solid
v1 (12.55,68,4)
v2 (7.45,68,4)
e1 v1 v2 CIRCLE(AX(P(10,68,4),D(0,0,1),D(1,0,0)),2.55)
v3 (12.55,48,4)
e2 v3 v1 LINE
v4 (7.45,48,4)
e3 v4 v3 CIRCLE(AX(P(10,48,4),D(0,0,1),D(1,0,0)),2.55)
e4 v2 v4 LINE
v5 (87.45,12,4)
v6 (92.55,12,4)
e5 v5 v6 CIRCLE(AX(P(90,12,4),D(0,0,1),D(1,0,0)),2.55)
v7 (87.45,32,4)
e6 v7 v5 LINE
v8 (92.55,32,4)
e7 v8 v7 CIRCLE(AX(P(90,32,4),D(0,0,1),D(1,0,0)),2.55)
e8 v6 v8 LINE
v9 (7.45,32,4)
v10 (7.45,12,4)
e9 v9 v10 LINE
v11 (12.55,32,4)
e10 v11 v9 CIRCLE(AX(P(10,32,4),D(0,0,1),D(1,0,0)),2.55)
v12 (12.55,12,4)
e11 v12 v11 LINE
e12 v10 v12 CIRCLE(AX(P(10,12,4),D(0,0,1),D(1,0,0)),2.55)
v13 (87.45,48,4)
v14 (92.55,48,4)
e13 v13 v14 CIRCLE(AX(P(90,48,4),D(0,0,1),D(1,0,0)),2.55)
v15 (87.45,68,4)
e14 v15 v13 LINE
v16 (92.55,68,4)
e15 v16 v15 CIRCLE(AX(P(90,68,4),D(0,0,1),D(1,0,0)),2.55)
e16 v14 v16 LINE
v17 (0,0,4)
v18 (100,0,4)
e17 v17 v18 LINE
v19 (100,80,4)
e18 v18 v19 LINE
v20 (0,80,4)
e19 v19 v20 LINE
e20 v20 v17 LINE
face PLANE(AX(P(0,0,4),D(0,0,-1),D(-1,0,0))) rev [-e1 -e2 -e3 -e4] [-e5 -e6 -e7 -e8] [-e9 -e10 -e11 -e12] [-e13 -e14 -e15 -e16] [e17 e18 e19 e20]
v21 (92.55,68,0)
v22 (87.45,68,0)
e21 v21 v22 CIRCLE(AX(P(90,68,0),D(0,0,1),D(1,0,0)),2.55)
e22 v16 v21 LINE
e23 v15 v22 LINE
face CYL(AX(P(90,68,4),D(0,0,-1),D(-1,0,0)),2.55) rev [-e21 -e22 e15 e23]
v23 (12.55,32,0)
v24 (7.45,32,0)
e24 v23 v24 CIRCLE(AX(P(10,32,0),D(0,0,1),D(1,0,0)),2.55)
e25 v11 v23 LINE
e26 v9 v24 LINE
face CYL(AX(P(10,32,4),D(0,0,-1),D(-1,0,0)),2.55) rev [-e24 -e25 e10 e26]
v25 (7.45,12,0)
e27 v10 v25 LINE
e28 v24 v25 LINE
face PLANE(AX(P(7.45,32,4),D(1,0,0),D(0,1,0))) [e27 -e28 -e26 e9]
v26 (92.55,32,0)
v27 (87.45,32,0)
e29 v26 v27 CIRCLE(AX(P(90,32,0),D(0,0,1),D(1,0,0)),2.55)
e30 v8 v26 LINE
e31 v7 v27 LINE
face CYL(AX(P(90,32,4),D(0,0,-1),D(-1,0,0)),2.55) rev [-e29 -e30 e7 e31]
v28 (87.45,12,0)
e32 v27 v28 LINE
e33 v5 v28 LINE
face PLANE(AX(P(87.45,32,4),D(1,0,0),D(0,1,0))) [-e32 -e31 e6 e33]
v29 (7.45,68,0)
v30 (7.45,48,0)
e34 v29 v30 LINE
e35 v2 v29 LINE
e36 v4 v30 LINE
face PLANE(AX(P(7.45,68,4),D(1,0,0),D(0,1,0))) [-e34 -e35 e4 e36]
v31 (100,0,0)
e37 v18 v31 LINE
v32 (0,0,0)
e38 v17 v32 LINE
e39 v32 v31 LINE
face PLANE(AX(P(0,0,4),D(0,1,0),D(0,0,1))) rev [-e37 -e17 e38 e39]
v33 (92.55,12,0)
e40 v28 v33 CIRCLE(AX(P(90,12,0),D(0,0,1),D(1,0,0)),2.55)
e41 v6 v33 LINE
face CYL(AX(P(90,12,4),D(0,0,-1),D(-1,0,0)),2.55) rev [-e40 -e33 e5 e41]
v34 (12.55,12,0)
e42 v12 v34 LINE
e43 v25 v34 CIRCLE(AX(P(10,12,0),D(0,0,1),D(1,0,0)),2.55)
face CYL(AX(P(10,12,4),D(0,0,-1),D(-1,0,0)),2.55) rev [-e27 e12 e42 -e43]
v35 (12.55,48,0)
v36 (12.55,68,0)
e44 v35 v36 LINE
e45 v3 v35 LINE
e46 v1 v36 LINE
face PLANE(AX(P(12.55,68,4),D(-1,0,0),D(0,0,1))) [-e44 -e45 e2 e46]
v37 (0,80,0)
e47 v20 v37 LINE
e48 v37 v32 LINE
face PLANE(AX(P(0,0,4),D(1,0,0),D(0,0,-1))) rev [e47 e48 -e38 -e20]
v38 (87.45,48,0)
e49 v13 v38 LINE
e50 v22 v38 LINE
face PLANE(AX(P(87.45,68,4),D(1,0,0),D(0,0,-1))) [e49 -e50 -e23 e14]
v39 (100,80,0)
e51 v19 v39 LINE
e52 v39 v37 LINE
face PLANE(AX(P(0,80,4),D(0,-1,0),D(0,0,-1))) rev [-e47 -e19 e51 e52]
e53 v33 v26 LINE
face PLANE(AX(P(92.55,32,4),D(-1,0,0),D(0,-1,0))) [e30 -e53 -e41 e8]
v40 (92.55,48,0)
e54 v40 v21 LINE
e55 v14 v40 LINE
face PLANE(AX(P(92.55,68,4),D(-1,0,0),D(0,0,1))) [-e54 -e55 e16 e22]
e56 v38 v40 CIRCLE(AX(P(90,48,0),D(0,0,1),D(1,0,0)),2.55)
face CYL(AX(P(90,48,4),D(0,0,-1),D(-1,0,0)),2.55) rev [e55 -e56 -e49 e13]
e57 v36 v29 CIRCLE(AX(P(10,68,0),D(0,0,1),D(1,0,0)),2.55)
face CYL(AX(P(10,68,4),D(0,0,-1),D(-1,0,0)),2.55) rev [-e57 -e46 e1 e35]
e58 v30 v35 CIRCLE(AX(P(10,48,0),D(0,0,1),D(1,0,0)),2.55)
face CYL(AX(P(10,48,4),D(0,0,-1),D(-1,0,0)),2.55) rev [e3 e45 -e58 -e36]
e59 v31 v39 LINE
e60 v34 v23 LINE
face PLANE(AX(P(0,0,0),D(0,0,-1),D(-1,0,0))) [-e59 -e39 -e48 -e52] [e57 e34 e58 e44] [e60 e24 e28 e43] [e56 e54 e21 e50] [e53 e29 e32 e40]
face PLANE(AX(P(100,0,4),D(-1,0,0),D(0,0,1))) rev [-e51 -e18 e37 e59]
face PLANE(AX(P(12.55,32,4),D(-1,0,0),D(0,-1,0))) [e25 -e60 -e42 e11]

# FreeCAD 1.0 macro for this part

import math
import FreeCAD as App
import Part
import Sketcher

V = App.Vector

doc = App.newDocument("Part")
params = doc.addObject("Spreadsheet::Sheet", "Params")
for row, (alias, value) in enumerate([
    ("sketch1_width", "100 mm"),
    ("sketch1_height", "80 mm"),
    ("sketch1_height2", "20 mm"),
    ("sketch1_radius", "2.55 mm"),
    ("pad1_length", "4 mm"),
], start=1):
    params.set(f"A{row}", alias)
    params.set(f"B{row}", "=" + value)
    params.setAlias(f"B{row}", alias)

body = doc.addObject("PartDesign::Body", "Body")

sketch1 = doc.addObject("Sketcher::SketchObject", "Sketch")
body.addObject(sketch1)
sketch1.AttachmentSupport = (doc.XY_Plane, [""])
sketch1.MapMode = "FlatFace"
sketch1.addGeometry(Part.LineSegment(V(0, 80, 0), V(0, 0, 0)), False)
sketch1.addGeometry(Part.LineSegment(V(0, 0, 0), V(100, 0, 0)), False)
sketch1.addGeometry(Part.LineSegment(V(100, 0, 0), V(100, 80, 0)), False)
sketch1.addGeometry(Part.LineSegment(V(100, 80, 0), V(0, 80, 0)), False)
sketch1.addGeometry(Part.ArcOfCircle(Part.Circle(V(10, 32, 0), V(0, 0, 1), 2.5), math.radians(0), math.radians(180)), False)
sketch1.addGeometry(Part.LineSegment(V(12.6, 32, 0), V(12.6, 12, 0)), False)
sketch1.addGeometry(Part.ArcOfCircle(Part.Circle(V(10, 12, 0), V(0, 0, 1), 2.5), math.radians(180), math.radians(360)), False)
sketch1.addGeometry(Part.LineSegment(V(7.5, 12, 0), V(7.5, 32, 0)), False)
sketch1.addGeometry(Part.ArcOfCircle(Part.Circle(V(90, 32, 0), V(0, 0, 1), 2.5), math.radians(0), math.radians(180)), False)
sketch1.addGeometry(Part.LineSegment(V(92.5, 32, 0), V(92.5, 12, 0)), False)
sketch1.addGeometry(Part.ArcOfCircle(Part.Circle(V(90, 12, 0), V(0, 0, 1), 2.5), math.radians(180), math.radians(360)), False)
sketch1.addGeometry(Part.LineSegment(V(87.5, 12, 0), V(87.5, 32, 0)), False)
sketch1.addGeometry(Part.ArcOfCircle(Part.Circle(V(10, 68, 0), V(0, 0, 1), 2.5), math.radians(0), math.radians(180)), False)
sketch1.addGeometry(Part.LineSegment(V(12.6, 68, 0), V(12.6, 48, 0)), False)
sketch1.addGeometry(Part.ArcOfCircle(Part.Circle(V(10, 48, 0), V(0, 0, 1), 2.5), math.radians(180), math.radians(360)), False)
sketch1.addGeometry(Part.LineSegment(V(7.5, 48, 0), V(7.5, 68, 0)), False)
sketch1.addGeometry(Part.ArcOfCircle(Part.Circle(V(90, 68, 0), V(0, 0, 1), 2.5), math.radians(0), math.radians(180)), False)
sketch1.addGeometry(Part.LineSegment(V(92.5, 68, 0), V(92.5, 48, 0)), False)
sketch1.addGeometry(Part.ArcOfCircle(Part.Circle(V(90, 48, 0), V(0, 0, 1), 2.5), math.radians(180), math.radians(360)), False)
sketch1.addGeometry(Part.LineSegment(V(87.5, 48, 0), V(87.5, 68, 0)), False)
sketch1.addConstraint(Sketcher.Constraint("Coincident", 0, 2, 1, 1))
sketch1.addConstraint(Sketcher.Constraint("Coincident", 1, 2, 2, 1))
sketch1.addConstraint(Sketcher.Constraint("Coincident", 2, 2, 3, 1))
sketch1.addConstraint(Sketcher.Constraint("Coincident", 3, 2, 0, 1))
sketch1.addConstraint(Sketcher.Constraint("Tangent", 4, 1, 5, 1))
sketch1.addConstraint(Sketcher.Constraint("Tangent", 5, 2, 6, 2))
sketch1.addConstraint(Sketcher.Constraint("Tangent", 6, 1, 7, 1))
sketch1.addConstraint(Sketcher.Constraint("Tangent", 7, 2, 4, 2))
sketch1.addConstraint(Sketcher.Constraint("Tangent", 8, 1, 9, 1))
sketch1.addConstraint(Sketcher.Constraint("Tangent", 9, 2, 10, 2))
sketch1.addConstraint(Sketcher.Constraint("Tangent", 10, 1, 11, 1))
sketch1.addConstraint(Sketcher.Constraint("Tangent", 11, 2, 8, 2))
sketch1.addConstraint(Sketcher.Constraint("Tangent", 12, 1, 13, 1))
sketch1.addConstraint(Sketcher.Constraint("Tangent", 13, 2, 14, 2))
sketch1.addConstraint(Sketcher.Constraint("Tangent", 14, 1, 15, 1))
sketch1.addConstraint(Sketcher.Constraint("Tangent", 15, 2, 12, 2))
sketch1.addConstraint(Sketcher.Constraint("Tangent", 16, 1, 17, 1))
sketch1.addConstraint(Sketcher.Constraint("Tangent", 17, 2, 18, 2))
sketch1.addConstraint(Sketcher.Constraint("Tangent", 18, 1, 19, 1))
sketch1.addConstraint(Sketcher.Constraint("Tangent", 19, 2, 16, 2))
sketch1.addConstraint(Sketcher.Constraint("Vertical", 0))
sketch1.addConstraint(Sketcher.Constraint("Horizontal", 1))
sketch1.addConstraint(Sketcher.Constraint("Vertical", 2))
sketch1.addConstraint(Sketcher.Constraint("Horizontal", 3))
sketch1.addConstraint(Sketcher.Constraint("Vertical", 5))
sketch1.addConstraint(Sketcher.Constraint("Vertical", 7))
sketch1.addConstraint(Sketcher.Constraint("Vertical", 9))
sketch1.addConstraint(Sketcher.Constraint("Vertical", 11))
sketch1.addConstraint(Sketcher.Constraint("Vertical", 13))
sketch1.addConstraint(Sketcher.Constraint("Vertical", 15))
sketch1.addConstraint(Sketcher.Constraint("Vertical", 17))
sketch1.addConstraint(Sketcher.Constraint("Vertical", 19))
sketch1.addConstraint(Sketcher.Constraint("Coincident", 0, 2, -1, 1))
sketch1.addConstraint(Sketcher.Constraint("Equal", 6, 8))
sketch1.addConstraint(Sketcher.Constraint("Equal", 10, 12))
sketch1.addConstraint(Sketcher.Constraint("Equal", 14, 16))
sketch1.addConstraint(Sketcher.Constraint("Horizontal", 4, 3, 8, 3))
sketch1.addConstraint(Sketcher.Constraint("Horizontal", 6, 3, 10, 3))
sketch1.addConstraint(Sketcher.Constraint("Horizontal", 12, 3, 16, 3))
sketch1.addConstraint(Sketcher.Constraint("Horizontal", 14, 3, 18, 3))
sketch1.addConstraint(Sketcher.Constraint("Vertical", 6, 3, 12, 3))
sketch1.addConstraint(Sketcher.Constraint("Vertical", 10, 3, 16, 3))
sketch1.addConstraint(Sketcher.Constraint("Equal", 11, 13))
sketch1.addConstraint(Sketcher.Constraint("DistanceX", 1, 1, 1, 2, 100.0))
sketch1.addConstraint(Sketcher.Constraint("DistanceY", 0, 2, 0, 1, 80.0))
sketch1.addConstraint(Sketcher.Constraint("DistanceY", 5, 2, 5, 1, 20.0))
sketch1.addConstraint(Sketcher.Constraint("Radius", 4, 2.55))
sketch1.addConstraint(Sketcher.Constraint("DistanceX", -1, 1, 4, 3, 10.0))
sketch1.addConstraint(Sketcher.Constraint("DistanceY", -1, 1, 4, 3, 32.0))
sketch1.addConstraint(Sketcher.Constraint("DistanceX", -1, 1, 8, 3, 90.0))
sketch1.addConstraint(Sketcher.Constraint("DistanceY", -1, 1, 12, 3, 68.0))
sketch1.setExpression("Constraints[43]", "Params.sketch1_width")
sketch1.setExpression("Constraints[44]", "Params.sketch1_height")
sketch1.setExpression("Constraints[45]", "Params.sketch1_height2")
sketch1.setExpression("Constraints[46]", "Params.sketch1_radius")
pad1 = doc.addObject("PartDesign::Pad", "Pad")
body.addObject(pad1)
pad1.Profile = sketch1
pad1.setExpression("Length", "Params.pad1_length")

doc.recompute()
